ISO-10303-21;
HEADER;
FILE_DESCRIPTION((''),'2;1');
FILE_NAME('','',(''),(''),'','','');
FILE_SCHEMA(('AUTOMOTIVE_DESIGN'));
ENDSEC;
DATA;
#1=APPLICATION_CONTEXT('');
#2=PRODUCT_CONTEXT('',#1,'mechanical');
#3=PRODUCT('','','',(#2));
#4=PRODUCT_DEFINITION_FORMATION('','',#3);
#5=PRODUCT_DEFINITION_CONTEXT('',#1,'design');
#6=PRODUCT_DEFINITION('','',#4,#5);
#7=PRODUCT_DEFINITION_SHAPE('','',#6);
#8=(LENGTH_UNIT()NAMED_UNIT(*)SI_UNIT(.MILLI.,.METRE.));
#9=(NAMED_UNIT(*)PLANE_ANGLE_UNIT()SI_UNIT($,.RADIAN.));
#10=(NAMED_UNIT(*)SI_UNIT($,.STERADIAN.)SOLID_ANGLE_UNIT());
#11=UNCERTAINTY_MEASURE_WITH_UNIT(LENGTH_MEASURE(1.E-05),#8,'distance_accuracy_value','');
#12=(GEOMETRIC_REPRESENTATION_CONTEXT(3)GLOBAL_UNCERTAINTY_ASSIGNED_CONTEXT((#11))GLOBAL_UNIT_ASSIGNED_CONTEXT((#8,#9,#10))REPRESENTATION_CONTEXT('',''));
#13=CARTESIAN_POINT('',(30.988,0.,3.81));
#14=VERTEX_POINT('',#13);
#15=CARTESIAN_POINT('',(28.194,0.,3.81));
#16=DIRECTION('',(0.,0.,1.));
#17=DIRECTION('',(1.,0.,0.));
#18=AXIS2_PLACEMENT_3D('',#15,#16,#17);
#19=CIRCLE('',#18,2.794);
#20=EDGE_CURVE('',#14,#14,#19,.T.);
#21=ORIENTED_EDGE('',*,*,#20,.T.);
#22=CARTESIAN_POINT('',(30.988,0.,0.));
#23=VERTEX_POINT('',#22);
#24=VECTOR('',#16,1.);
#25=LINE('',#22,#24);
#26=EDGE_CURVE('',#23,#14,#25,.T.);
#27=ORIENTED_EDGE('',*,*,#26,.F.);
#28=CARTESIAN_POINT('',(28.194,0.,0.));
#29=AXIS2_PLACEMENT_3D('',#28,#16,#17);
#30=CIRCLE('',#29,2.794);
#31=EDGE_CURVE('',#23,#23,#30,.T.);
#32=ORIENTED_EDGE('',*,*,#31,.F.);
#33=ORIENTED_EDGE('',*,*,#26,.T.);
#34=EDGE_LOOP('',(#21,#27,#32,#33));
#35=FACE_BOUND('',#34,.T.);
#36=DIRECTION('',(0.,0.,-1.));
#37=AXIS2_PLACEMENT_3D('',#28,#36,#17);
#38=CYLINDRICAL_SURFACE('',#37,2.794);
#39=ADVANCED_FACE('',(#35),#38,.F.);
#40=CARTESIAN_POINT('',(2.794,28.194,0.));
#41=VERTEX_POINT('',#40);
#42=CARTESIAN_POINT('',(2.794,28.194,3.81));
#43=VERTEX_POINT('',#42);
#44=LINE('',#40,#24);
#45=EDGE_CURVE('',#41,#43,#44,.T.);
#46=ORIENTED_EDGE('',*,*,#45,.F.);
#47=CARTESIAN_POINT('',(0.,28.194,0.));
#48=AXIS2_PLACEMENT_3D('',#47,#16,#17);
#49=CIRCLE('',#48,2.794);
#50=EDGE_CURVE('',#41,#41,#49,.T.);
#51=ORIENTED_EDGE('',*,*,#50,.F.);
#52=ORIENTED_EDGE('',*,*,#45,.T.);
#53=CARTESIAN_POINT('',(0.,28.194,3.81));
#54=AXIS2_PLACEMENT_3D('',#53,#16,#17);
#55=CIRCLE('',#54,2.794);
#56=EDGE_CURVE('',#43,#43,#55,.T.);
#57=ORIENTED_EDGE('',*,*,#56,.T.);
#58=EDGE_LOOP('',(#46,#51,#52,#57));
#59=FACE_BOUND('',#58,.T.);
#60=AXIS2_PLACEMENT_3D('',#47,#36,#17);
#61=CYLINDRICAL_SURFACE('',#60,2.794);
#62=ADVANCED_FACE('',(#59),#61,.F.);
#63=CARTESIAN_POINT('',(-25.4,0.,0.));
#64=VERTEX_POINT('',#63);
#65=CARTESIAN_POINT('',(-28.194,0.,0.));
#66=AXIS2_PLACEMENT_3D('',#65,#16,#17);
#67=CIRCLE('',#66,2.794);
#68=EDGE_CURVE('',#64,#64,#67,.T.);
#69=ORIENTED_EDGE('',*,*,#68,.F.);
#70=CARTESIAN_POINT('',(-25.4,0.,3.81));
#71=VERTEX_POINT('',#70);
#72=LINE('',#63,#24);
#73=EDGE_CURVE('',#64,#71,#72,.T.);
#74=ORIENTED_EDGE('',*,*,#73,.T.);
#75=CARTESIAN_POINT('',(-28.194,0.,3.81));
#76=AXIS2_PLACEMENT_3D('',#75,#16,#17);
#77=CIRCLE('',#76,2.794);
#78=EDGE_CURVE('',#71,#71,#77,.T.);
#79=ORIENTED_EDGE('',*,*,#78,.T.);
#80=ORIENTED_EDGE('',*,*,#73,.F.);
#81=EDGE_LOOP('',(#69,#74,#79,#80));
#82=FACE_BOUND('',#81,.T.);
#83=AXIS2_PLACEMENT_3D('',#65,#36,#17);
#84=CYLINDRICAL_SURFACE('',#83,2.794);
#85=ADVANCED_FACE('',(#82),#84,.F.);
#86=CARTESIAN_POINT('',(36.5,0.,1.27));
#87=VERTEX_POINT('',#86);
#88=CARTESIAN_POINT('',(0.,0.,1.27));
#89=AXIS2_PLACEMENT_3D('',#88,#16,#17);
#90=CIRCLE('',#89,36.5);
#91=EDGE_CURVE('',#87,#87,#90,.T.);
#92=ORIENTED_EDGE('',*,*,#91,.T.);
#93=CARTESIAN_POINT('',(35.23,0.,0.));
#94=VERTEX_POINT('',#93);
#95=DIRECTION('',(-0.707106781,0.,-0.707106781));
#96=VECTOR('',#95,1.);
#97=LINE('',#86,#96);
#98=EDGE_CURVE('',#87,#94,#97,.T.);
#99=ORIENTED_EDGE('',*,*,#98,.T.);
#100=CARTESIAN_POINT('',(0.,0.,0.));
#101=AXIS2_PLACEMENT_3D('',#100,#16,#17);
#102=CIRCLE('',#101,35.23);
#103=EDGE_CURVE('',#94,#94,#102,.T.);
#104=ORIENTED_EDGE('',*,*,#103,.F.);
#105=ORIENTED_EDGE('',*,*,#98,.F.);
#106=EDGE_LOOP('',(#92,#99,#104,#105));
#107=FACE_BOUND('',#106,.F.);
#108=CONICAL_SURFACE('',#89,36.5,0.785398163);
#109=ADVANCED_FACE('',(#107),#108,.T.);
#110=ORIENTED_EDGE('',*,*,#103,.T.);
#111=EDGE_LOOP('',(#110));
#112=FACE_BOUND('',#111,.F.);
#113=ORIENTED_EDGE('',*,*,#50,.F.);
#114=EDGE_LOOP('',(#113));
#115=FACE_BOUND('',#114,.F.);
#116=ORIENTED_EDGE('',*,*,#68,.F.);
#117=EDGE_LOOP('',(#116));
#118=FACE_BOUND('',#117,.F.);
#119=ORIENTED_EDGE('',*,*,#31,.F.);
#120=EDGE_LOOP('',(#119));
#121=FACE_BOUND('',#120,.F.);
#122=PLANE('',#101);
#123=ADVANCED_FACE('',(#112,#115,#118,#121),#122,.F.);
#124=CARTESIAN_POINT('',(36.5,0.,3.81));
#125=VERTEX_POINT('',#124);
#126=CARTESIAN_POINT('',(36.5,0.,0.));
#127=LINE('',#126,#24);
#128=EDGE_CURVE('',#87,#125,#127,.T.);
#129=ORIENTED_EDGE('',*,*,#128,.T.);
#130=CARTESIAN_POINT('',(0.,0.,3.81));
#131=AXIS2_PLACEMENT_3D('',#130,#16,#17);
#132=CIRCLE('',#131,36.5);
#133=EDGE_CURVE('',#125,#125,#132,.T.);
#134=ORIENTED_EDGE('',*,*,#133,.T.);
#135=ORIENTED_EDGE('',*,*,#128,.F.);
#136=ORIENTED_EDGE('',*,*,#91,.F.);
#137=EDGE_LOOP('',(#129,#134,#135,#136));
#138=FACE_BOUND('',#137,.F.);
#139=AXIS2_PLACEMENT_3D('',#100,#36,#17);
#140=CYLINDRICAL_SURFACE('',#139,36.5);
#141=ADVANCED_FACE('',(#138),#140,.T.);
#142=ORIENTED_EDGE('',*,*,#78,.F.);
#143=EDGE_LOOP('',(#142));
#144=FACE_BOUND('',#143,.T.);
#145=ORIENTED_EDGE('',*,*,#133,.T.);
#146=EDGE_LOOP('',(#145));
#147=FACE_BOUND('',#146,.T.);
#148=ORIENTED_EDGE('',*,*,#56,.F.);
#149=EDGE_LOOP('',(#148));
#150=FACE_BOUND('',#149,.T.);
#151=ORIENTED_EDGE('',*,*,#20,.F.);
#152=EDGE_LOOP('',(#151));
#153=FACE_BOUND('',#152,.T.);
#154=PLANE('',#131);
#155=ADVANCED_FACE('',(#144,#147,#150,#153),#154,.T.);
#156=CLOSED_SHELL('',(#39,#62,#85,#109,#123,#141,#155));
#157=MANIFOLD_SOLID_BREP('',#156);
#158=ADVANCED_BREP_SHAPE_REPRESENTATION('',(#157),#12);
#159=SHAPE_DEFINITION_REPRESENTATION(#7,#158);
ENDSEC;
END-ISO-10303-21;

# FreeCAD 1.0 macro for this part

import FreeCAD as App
import Part
import Sketcher

V = App.Vector
Q = App.Units.Quantity


def edges_at(feature, points):
    """Names of the edges that pass closest to the given points."""
    edges = feature.Shape.Edges
    near = lambda p: min(range(len(edges)), key=lambda i: edges[i].distToShape(Part.Vertex(*p))[0])
    return sorted({f"Edge{near(p) + 1}" for p in points})

doc = App.newDocument("Part")
body = doc.addObject("PartDesign::Body", "Body")

sketch1 = body.newObject("Sketcher::SketchObject", "Sketch")
sketch1.AttachmentSupport = (doc.getObject("XY_Plane"), [""])
sketch1.MapMode = "FlatFace"
sketch1.addGeometry([
    Part.Circle(V(0, 0, 0), V(0, 0, 1), 36.5),
    Part.Circle(V(-28.194, 0, 0), V(0, 0, 1), 2.794),
    Part.Circle(V(28.194, 0, 0), V(0, 0, 1), 2.794),
    Part.Circle(V(0, 28.194, 0), V(0, 0, 1), 2.794),
], False)
sketch1.addConstraint([
    Sketcher.Constraint("Coincident", 0, 3, -1, 1),
    Sketcher.Constraint("Equal", 1, 2),
    Sketcher.Constraint("Equal", 2, 3),
    Sketcher.Constraint("Symmetric", 1, 3, 2, 3, -1, 1),
    Sketcher.Constraint("PointOnObject", 1, 3, -1),
    Sketcher.Constraint("PointOnObject", 3, 3, -2),
    Sketcher.Constraint("Diameter", 1, Q("0.22 in")),
    Sketcher.Constraint("Diameter", 0, 73.0),
    Sketcher.Constraint("DistanceX", 1, 3, -1, 1, Q("1.11 in")),
    Sketcher.Constraint("DistanceY", -1, 1, 3, 3, Q("1.11 in")),
])
pad1 = body.newObject("PartDesign::Pad", "Pad")
pad1.Profile = sketch1
pad1.Length = Q("0.15 in")
doc.recompute()

chamfer = body.newObject("PartDesign::Chamfer", "Chamfer")
chamfer.Base = (pad1, edges_at(pad1, [(-36.5, 0, 0)]))
chamfer.Size = Q("0.05 in")

doc.recompute()
